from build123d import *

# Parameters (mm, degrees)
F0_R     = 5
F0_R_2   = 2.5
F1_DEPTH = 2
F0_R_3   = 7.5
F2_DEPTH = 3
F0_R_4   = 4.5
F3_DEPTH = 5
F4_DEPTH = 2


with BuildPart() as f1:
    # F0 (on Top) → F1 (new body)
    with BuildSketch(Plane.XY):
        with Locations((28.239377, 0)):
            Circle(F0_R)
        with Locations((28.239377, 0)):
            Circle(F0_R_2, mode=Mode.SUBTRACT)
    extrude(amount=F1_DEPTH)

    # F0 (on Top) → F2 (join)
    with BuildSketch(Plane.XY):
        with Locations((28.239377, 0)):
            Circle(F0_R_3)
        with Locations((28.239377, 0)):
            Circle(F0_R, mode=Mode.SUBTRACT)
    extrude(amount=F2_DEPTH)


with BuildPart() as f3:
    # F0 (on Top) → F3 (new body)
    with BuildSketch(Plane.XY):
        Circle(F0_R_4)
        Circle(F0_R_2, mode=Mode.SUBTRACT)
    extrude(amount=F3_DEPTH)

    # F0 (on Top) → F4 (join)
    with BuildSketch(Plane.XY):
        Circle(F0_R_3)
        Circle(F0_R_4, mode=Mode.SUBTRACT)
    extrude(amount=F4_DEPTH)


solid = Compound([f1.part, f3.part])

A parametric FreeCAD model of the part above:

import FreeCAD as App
import Part
import Sketcher

doc = App.newDocument("Part")
body = doc.addObject("PartDesign::Body", "Body")

# Sketch on XY plane
sketch1 = body.newObject("Sketcher::SketchObject", "Sketch")
sketch1.AttachmentSupport = (doc.getObject("XY_Plane"), [""])
sketch1.MapMode = "FlatFace"
sketch1.addGeometry(Part.Circle(App.Vector(28.239377, 0, 0), App.Vector(0, 0, 1), 5), False)
sketch1.addGeometry(Part.Circle(App.Vector(28.239377, 0, 0), App.Vector(0, 0, 1), 2.5), False)
sketch1.addConstraint(Sketcher.Constraint("Coincident", 1, 3, 0, 3))
sketch1.addConstraint(Sketcher.Constraint("PointOnObject", 0, 3, -1))
sketch1.addConstraint(Sketcher.Constraint("Diameter", 0, 10.0))
sketch1.addConstraint(Sketcher.Constraint("Diameter", 1, 5.0))
sketch1.addConstraint(Sketcher.Constraint("DistanceX", -1, 1, 0, 3, 28.239377))
pad1 = body.newObject("PartDesign::Pad", "Pad")
pad1.Profile = sketch1
pad1.Length = 2

# Sketch on XY plane
sketch2 = body.newObject("Sketcher::SketchObject", "Sketch001")
sketch2.AttachmentSupport = (doc.getObject("XY_Plane"), [""])
sketch2.MapMode = "FlatFace"
sketch2.addGeometry(Part.Circle(App.Vector(28.239377, 0, 0), App.Vector(0, 0, 1), 7.5), False)
sketch2.addGeometry(Part.Circle(App.Vector(28.239377, 0, 0), App.Vector(0, 0, 1), 5), False)
sketch2.addConstraint(Sketcher.Constraint("Coincident", 1, 3, 0, 3))
sketch2.addConstraint(Sketcher.Constraint("PointOnObject", 0, 3, -1))
sketch2.addConstraint(Sketcher.Constraint("Diameter", 0, 15.0))
sketch2.addConstraint(Sketcher.Constraint("Diameter", 1, 10.0))
sketch2.addConstraint(Sketcher.Constraint("DistanceX", -1, 1, 0, 3, 28.239377))
pad2 = body.newObject("PartDesign::Pad", "Pad001")
pad2.Profile = sketch2
pad2.Length = 3
body2 = doc.addObject("PartDesign::Body", "Body001")

# Sketch on XY plane
sketch3 = body2.newObject("Sketcher::SketchObject", "Sketch002")
sketch3.AttachmentSupport = (doc.getObject("XY_Plane001"), [""])
sketch3.MapMode = "FlatFace"
sketch3.addGeometry(Part.Circle(App.Vector(0, 0, 0), App.Vector(0, 0, 1), 4.5), False)
sketch3.addGeometry(Part.Circle(App.Vector(0, 0, 0), App.Vector(0, 0, 1), 2.5), False)
sketch3.addConstraint(Sketcher.Constraint("Coincident", 0, 3, -1, 1))
sketch3.addConstraint(Sketcher.Constraint("Coincident", 1, 3, -1, 1))
sketch3.addConstraint(Sketcher.Constraint("Diameter", 0, 9.0))
sketch3.addConstraint(Sketcher.Constraint("Diameter", 1, 5.0))
pad3 = body2.newObject("PartDesign::Pad", "Pad002")
pad3.Profile = sketch3
pad3.Length = 5

# Sketch on XY plane
sketch4 = body2.newObject("Sketcher::SketchObject", "Sketch003")
sketch4.AttachmentSupport = (doc.getObject("XY_Plane001"), [""])
sketch4.MapMode = "FlatFace"
sketch4.addGeometry(Part.Circle(App.Vector(0, 0, 0), App.Vector(0, 0, 1), 7.5), False)
sketch4.addGeometry(Part.Circle(App.Vector(0, 0, 0), App.Vector(0, 0, 1), 4.5), False)
sketch4.addConstraint(Sketcher.Constraint("Coincident", 0, 3, -1, 1))
sketch4.addConstraint(Sketcher.Constraint("Coincident", 1, 3, -1, 1))
sketch4.addConstraint(Sketcher.Constraint("Diameter", 0, 15.0))
sketch4.addConstraint(Sketcher.Constraint("Diameter", 1, 9.0))
pad4 = body2.newObject("PartDesign::Pad", "Pad003")
pad4.Profile = sketch4
pad4.Length = 2

doc.recompute()
